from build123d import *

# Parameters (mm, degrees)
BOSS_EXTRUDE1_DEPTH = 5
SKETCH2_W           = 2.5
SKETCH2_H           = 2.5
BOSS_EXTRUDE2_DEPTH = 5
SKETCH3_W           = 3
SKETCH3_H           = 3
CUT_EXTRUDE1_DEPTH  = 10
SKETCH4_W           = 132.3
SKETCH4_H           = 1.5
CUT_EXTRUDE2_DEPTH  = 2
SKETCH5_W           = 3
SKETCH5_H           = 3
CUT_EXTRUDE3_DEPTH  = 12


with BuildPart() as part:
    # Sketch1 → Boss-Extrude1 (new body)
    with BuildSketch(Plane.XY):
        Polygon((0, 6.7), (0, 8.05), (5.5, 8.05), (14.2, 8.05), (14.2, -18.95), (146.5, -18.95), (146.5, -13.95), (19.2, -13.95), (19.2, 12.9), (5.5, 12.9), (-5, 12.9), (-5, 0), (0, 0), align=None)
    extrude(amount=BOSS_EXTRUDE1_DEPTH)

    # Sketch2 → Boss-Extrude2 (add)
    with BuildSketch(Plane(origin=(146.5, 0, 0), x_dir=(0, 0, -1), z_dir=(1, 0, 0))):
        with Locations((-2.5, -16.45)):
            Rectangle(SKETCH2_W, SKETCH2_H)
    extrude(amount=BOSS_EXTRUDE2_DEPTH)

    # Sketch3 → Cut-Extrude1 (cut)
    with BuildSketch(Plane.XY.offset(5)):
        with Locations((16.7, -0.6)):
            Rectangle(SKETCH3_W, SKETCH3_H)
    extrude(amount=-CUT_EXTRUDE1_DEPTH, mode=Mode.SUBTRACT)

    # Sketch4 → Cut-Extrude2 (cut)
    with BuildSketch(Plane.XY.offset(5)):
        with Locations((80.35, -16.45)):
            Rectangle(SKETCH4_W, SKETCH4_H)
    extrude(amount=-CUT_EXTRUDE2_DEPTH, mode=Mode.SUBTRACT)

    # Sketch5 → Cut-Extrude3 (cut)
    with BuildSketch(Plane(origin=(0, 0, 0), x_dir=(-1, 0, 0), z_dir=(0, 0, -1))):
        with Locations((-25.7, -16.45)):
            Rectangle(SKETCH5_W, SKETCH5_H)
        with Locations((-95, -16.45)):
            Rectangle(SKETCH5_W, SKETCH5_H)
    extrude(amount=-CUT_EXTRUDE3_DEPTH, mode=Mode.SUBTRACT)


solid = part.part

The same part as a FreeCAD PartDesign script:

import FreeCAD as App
import Part
import Sketcher

V = App.Vector

doc = App.newDocument("Part")
body = doc.addObject("PartDesign::Body", "Body")

sketch1 = body.newObject("Sketcher::SketchObject", "Sketch")
sketch1.AttachmentSupport = (doc.getObject("XY_Plane"), [""])
sketch1.MapMode = "FlatFace"
sketch1.addGeometry(Part.LineSegment(V(0, 8.05, 0), V(14.2, 8.05, 0)), False)
sketch1.addGeometry(Part.LineSegment(V(14.2, 8.05, 0), V(14.2, -18.95, 0)), False)
sketch1.addGeometry(Part.LineSegment(V(14.2, -18.95, 0), V(146.5, -18.95, 0)), False)
sketch1.addGeometry(Part.LineSegment(V(146.5, -18.95, 0), V(146.5, -13.95, 0)), False)
sketch1.addGeometry(Part.LineSegment(V(146.5, -13.95, 0), V(19.2, -13.95, 0)), False)
sketch1.addGeometry(Part.LineSegment(V(19.2, -13.95, 0), V(19.2, 12.9, 0)), False)
sketch1.addGeometry(Part.LineSegment(V(19.2, 12.9, 0), V(-5, 12.9, 0)), False)
sketch1.addGeometry(Part.LineSegment(V(-5, 12.9, 0), V(-5, 0, 0)), False)
sketch1.addGeometry(Part.LineSegment(V(-5, 0, 0), V(0, 0, 0)), False)
sketch1.addGeometry(Part.LineSegment(V(0, 0, 0), V(0, 8.05, 0)), False)
sketch1.addConstraint(Sketcher.Constraint("Coincident", 0, 2, 1, 1))
sketch1.addConstraint(Sketcher.Constraint("Coincident", 1, 2, 2, 1))
sketch1.addConstraint(Sketcher.Constraint("Coincident", 2, 2, 3, 1))
sketch1.addConstraint(Sketcher.Constraint("Coincident", 3, 2, 4, 1))
sketch1.addConstraint(Sketcher.Constraint("Coincident", 4, 2, 5, 1))
sketch1.addConstraint(Sketcher.Constraint("Coincident", 5, 2, 6, 1))
sketch1.addConstraint(Sketcher.Constraint("Coincident", 6, 2, 7, 1))
sketch1.addConstraint(Sketcher.Constraint("Coincident", 7, 2, 8, 1))
sketch1.addConstraint(Sketcher.Constraint("Coincident", 8, 2, 9, 1))
sketch1.addConstraint(Sketcher.Constraint("Coincident", 9, 2, 0, 1))
sketch1.addConstraint(Sketcher.Constraint("Horizontal", 0))
sketch1.addConstraint(Sketcher.Constraint("Vertical", 1))
sketch1.addConstraint(Sketcher.Constraint("Horizontal", 2))
sketch1.addConstraint(Sketcher.Constraint("Vertical", 3))
sketch1.addConstraint(Sketcher.Constraint("Horizontal", 4))
sketch1.addConstraint(Sketcher.Constraint("Vertical", 5))
sketch1.addConstraint(Sketcher.Constraint("Horizontal", 6))
sketch1.addConstraint(Sketcher.Constraint("Vertical", 7))
sketch1.addConstraint(Sketcher.Constraint("Horizontal", 8))
sketch1.addConstraint(Sketcher.Constraint("Vertical", 9))
sketch1.addConstraint(Sketcher.Constraint("Coincident", 8, 2, -1, 1))
sketch1.addConstraint(Sketcher.Constraint("Equal", 8, 3))
sketch1.addConstraint(Sketcher.Constraint("DistanceX", 8, 1, 8, 2, 5.0))
sketch1.addConstraint(Sketcher.Constraint("DistanceY", 1, 2, 1, 1, 27.0))
sketch1.addConstraint(Sketcher.Constraint("DistanceX", 0, 1, 0, 2, 14.2))
sketch1.addConstraint(Sketcher.Constraint("DistanceX", 2, 1, 2, 2, 132.3))
sketch1.addConstraint(Sketcher.Constraint("DistanceX", 4, 2, 4, 1, 127.3))
sketch1.addConstraint(Sketcher.Constraint("DistanceY", 7, 2, 7, 1, 12.9))
sketch1.addConstraint(Sketcher.Constraint("DistanceY", 5, 1, 5, 2, 26.85))
pad1 = body.newObject("PartDesign::Pad", "Pad")
pad1.Profile = sketch1
pad1.Length = 5

sketch2 = body.newObject("Sketcher::SketchObject", "Sketch001")
sketch2.AttachmentSupport = (doc.getObject("YZ_Plane"), [""])
sketch2.MapMode = "FlatFace"
sketch2.AttachmentOffset = App.Placement(V(0, 0, 146.5), App.Rotation())
sketch2.addGeometry(Part.LineSegment(V(-15.2, 3.75, 0), V(-17.7, 3.75, 0)), False)
sketch2.addGeometry(Part.LineSegment(V(-17.7, 3.75, 0), V(-17.7, 1.25, 0)), False)
sketch2.addGeometry(Part.LineSegment(V(-17.7, 1.25, 0), V(-15.2, 1.25, 0)), False)
sketch2.addGeometry(Part.LineSegment(V(-15.2, 1.25, 0), V(-15.2, 3.75, 0)), False)
sketch2.addConstraint(Sketcher.Constraint("Coincident", 0, 2, 1, 1))
sketch2.addConstraint(Sketcher.Constraint("Coincident", 1, 2, 2, 1))
sketch2.addConstraint(Sketcher.Constraint("Coincident", 2, 2, 3, 1))
sketch2.addConstraint(Sketcher.Constraint("Coincident", 3, 2, 0, 1))
sketch2.addConstraint(Sketcher.Constraint("Horizontal", 0))
sketch2.addConstraint(Sketcher.Constraint("Vertical", 1))
sketch2.addConstraint(Sketcher.Constraint("Horizontal", 2))
sketch2.addConstraint(Sketcher.Constraint("Vertical", 3))
sketch2.addConstraint(Sketcher.Constraint("Equal", 2, 1))
sketch2.addConstraint(Sketcher.Constraint("DistanceX", 0, 2, 0, 1, 2.5))
sketch2.addConstraint(Sketcher.Constraint("DistanceX", 0, 2, -1, 1, 17.7))
sketch2.addConstraint(Sketcher.Constraint("DistanceY", -1, 1, 0, 2, 3.75))
pad2 = body.newObject("PartDesign::Pad", "Pad001")
pad2.Profile = sketch2
pad2.Length = 5

sketch3 = body.newObject("Sketcher::SketchObject", "Sketch002")
sketch3.AttachmentSupport = (doc.getObject("XY_Plane"), [""])
sketch3.MapMode = "FlatFace"
sketch3.AttachmentOffset = App.Placement(V(0, 0, 5), App.Rotation())
sketch3.addGeometry(Part.LineSegment(V(15.2, 0.9, 0), V(15.2, -2.1, 0)), False)
sketch3.addGeometry(Part.LineSegment(V(15.2, -2.1, 0), V(18.2, -2.1, 0)), False)
sketch3.addGeometry(Part.LineSegment(V(18.2, -2.1, 0), V(18.2, 0.9, 0)), False)
sketch3.addGeometry(Part.LineSegment(V(18.2, 0.9, 0), V(15.2, 0.9, 0)), False)
sketch3.addConstraint(Sketcher.Constraint("Coincident", 0, 2, 1, 1))
sketch3.addConstraint(Sketcher.Constraint("Coincident", 1, 2, 2, 1))
sketch3.addConstraint(Sketcher.Constraint("Coincident", 2, 2, 3, 1))
sketch3.addConstraint(Sketcher.Constraint("Coincident", 3, 2, 0, 1))
sketch3.addConstraint(Sketcher.Constraint("Vertical", 0))
sketch3.addConstraint(Sketcher.Constraint("Horizontal", 1))
sketch3.addConstraint(Sketcher.Constraint("Vertical", 2))
sketch3.addConstraint(Sketcher.Constraint("Horizontal", 3))
sketch3.addConstraint(Sketcher.Constraint("Equal", 3, 0))
sketch3.addConstraint(Sketcher.Constraint("DistanceX", 1, 1, 1, 2, 3.0))
sketch3.addConstraint(Sketcher.Constraint("DistanceX", -1, 1, 0, 2, 15.2))
sketch3.addConstraint(Sketcher.Constraint("DistanceY", 0, 2, -1, 1, 2.1))
pocket1 = body.newObject("PartDesign::Pocket", "Pocket")
pocket1.Profile = sketch3
pocket1.Length = 10

sketch4 = body.newObject("Sketcher::SketchObject", "Sketch003")
sketch4.AttachmentSupport = (doc.getObject("XY_Plane"), [""])
sketch4.MapMode = "FlatFace"
sketch4.AttachmentOffset = App.Placement(V(0, 0, 5), App.Rotation())
sketch4.addGeometry(Part.LineSegment(V(14.2, -15.7, 0), V(14.2, -17.2, 0)), False)
sketch4.addGeometry(Part.LineSegment(V(14.2, -17.2, 0), V(146.5, -17.2, 0)), False)
sketch4.addGeometry(Part.LineSegment(V(146.5, -17.2, 0), V(146.5, -15.7, 0)), False)
sketch4.addGeometry(Part.LineSegment(V(146.5, -15.7, 0), V(14.2, -15.7, 0)), False)
sketch4.addConstraint(Sketcher.Constraint("Coincident", 0, 2, 1, 1))
sketch4.addConstraint(Sketcher.Constraint("Coincident", 1, 2, 2, 1))
sketch4.addConstraint(Sketcher.Constraint("Coincident", 2, 2, 3, 1))
sketch4.addConstraint(Sketcher.Constraint("Coincident", 3, 2, 0, 1))
sketch4.addConstraint(Sketcher.Constraint("Vertical", 0))
sketch4.addConstraint(Sketcher.Constraint("Horizontal", 1))
sketch4.addConstraint(Sketcher.Constraint("Vertical", 2))
sketch4.addConstraint(Sketcher.Constraint("Horizontal", 3))
sketch4.addConstraint(Sketcher.Constraint("DistanceX", 1, 1, 1, 2, 132.3))
sketch4.addConstraint(Sketcher.Constraint("DistanceY", 0, 2, 0, 1, 1.5))
sketch4.addConstraint(Sketcher.Constraint("DistanceX", -1, 1, 0, 2, 14.2))
sketch4.addConstraint(Sketcher.Constraint("DistanceY", 0, 2, -1, 1, 17.2))
pocket2 = body.newObject("PartDesign::Pocket", "Pocket001")
pocket2.Profile = sketch4
pocket2.Length = 2

sketch5 = body.newObject("Sketcher::SketchObject", "Sketch004")
sketch5.AttachmentSupport = (doc.getObject("XY_Plane"), [""])
sketch5.MapMode = "FlatFace"
sketch5.addGeometry(Part.LineSegment(V(27.2, -14.95, 0), V(27.2, -17.95, 0)), False)
sketch5.addGeometry(Part.LineSegment(V(27.2, -17.95, 0), V(24.2, -17.95, 0)), False)
sketch5.addGeometry(Part.LineSegment(V(24.2, -17.95, 0), V(24.2, -14.95, 0)), False)
sketch5.addGeometry(Part.LineSegment(V(24.2, -14.95, 0), V(27.2, -14.95, 0)), False)
sketch5.addGeometry(Part.LineSegment(V(96.5, -14.95, 0), V(96.5, -17.95, 0)), False)
sketch5.addGeometry(Part.LineSegment(V(96.5, -17.95, 0), V(93.5, -17.95, 0)), False)
sketch5.addGeometry(Part.LineSegment(V(93.5, -17.95, 0), V(93.5, -14.95, 0)), False)
sketch5.addGeometry(Part.LineSegment(V(93.5, -14.95, 0), V(96.5, -14.95, 0)), False)
sketch5.addConstraint(Sketcher.Constraint("Coincident", 0, 2, 1, 1))
sketch5.addConstraint(Sketcher.Constraint("Coincident", 1, 2, 2, 1))
sketch5.addConstraint(Sketcher.Constraint("Coincident", 2, 2, 3, 1))
sketch5.addConstraint(Sketcher.Constraint("Coincident", 3, 2, 0, 1))
sketch5.addConstraint(Sketcher.Constraint("Coincident", 4, 2, 5, 1))
sketch5.addConstraint(Sketcher.Constraint("Coincident", 5, 2, 6, 1))
sketch5.addConstraint(Sketcher.Constraint("Coincident", 6, 2, 7, 1))
sketch5.addConstraint(Sketcher.Constraint("Coincident", 7, 2, 4, 1))
sketch5.addConstraint(Sketcher.Constraint("Vertical", 0))
sketch5.addConstraint(Sketcher.Constraint("Horizontal", 1))
sketch5.addConstraint(Sketcher.Constraint("Vertical", 2))
sketch5.addConstraint(Sketcher.Constraint("Horizontal", 3))
sketch5.addConstraint(Sketcher.Constraint("Vertical", 4))
sketch5.addConstraint(Sketcher.Constraint("Horizontal", 5))
sketch5.addConstraint(Sketcher.Constraint("Vertical", 6))
sketch5.addConstraint(Sketcher.Constraint("Horizontal", 7))
sketch5.addConstraint(Sketcher.Constraint("Horizontal", 1, 2, 4, 2))
sketch5.addConstraint(Sketcher.Constraint("Horizontal", 3, 2, 6, 2))
sketch5.addConstraint(Sketcher.Constraint("Equal", 3, 5))
sketch5.addConstraint(Sketcher.Constraint("Equal", 7, 0))
sketch5.addConstraint(Sketcher.Constraint("DistanceX", 1, 2, 1, 1, 3.0))
sketch5.addConstraint(Sketcher.Constraint("DistanceX", -1, 1, 0, 2, 27.2))
sketch5.addConstraint(Sketcher.Constraint("DistanceX", -1, 1, 4, 2, 96.5))
sketch5.addConstraint(Sketcher.Constraint("DistanceY", 0, 2, -1, 1, 17.95))
pocket3 = body.newObject("PartDesign::Pocket", "Pocket002")
pocket3.Profile = sketch5
pocket3.Length = 12
pocket3.Reversed = True

doc.recompute()
